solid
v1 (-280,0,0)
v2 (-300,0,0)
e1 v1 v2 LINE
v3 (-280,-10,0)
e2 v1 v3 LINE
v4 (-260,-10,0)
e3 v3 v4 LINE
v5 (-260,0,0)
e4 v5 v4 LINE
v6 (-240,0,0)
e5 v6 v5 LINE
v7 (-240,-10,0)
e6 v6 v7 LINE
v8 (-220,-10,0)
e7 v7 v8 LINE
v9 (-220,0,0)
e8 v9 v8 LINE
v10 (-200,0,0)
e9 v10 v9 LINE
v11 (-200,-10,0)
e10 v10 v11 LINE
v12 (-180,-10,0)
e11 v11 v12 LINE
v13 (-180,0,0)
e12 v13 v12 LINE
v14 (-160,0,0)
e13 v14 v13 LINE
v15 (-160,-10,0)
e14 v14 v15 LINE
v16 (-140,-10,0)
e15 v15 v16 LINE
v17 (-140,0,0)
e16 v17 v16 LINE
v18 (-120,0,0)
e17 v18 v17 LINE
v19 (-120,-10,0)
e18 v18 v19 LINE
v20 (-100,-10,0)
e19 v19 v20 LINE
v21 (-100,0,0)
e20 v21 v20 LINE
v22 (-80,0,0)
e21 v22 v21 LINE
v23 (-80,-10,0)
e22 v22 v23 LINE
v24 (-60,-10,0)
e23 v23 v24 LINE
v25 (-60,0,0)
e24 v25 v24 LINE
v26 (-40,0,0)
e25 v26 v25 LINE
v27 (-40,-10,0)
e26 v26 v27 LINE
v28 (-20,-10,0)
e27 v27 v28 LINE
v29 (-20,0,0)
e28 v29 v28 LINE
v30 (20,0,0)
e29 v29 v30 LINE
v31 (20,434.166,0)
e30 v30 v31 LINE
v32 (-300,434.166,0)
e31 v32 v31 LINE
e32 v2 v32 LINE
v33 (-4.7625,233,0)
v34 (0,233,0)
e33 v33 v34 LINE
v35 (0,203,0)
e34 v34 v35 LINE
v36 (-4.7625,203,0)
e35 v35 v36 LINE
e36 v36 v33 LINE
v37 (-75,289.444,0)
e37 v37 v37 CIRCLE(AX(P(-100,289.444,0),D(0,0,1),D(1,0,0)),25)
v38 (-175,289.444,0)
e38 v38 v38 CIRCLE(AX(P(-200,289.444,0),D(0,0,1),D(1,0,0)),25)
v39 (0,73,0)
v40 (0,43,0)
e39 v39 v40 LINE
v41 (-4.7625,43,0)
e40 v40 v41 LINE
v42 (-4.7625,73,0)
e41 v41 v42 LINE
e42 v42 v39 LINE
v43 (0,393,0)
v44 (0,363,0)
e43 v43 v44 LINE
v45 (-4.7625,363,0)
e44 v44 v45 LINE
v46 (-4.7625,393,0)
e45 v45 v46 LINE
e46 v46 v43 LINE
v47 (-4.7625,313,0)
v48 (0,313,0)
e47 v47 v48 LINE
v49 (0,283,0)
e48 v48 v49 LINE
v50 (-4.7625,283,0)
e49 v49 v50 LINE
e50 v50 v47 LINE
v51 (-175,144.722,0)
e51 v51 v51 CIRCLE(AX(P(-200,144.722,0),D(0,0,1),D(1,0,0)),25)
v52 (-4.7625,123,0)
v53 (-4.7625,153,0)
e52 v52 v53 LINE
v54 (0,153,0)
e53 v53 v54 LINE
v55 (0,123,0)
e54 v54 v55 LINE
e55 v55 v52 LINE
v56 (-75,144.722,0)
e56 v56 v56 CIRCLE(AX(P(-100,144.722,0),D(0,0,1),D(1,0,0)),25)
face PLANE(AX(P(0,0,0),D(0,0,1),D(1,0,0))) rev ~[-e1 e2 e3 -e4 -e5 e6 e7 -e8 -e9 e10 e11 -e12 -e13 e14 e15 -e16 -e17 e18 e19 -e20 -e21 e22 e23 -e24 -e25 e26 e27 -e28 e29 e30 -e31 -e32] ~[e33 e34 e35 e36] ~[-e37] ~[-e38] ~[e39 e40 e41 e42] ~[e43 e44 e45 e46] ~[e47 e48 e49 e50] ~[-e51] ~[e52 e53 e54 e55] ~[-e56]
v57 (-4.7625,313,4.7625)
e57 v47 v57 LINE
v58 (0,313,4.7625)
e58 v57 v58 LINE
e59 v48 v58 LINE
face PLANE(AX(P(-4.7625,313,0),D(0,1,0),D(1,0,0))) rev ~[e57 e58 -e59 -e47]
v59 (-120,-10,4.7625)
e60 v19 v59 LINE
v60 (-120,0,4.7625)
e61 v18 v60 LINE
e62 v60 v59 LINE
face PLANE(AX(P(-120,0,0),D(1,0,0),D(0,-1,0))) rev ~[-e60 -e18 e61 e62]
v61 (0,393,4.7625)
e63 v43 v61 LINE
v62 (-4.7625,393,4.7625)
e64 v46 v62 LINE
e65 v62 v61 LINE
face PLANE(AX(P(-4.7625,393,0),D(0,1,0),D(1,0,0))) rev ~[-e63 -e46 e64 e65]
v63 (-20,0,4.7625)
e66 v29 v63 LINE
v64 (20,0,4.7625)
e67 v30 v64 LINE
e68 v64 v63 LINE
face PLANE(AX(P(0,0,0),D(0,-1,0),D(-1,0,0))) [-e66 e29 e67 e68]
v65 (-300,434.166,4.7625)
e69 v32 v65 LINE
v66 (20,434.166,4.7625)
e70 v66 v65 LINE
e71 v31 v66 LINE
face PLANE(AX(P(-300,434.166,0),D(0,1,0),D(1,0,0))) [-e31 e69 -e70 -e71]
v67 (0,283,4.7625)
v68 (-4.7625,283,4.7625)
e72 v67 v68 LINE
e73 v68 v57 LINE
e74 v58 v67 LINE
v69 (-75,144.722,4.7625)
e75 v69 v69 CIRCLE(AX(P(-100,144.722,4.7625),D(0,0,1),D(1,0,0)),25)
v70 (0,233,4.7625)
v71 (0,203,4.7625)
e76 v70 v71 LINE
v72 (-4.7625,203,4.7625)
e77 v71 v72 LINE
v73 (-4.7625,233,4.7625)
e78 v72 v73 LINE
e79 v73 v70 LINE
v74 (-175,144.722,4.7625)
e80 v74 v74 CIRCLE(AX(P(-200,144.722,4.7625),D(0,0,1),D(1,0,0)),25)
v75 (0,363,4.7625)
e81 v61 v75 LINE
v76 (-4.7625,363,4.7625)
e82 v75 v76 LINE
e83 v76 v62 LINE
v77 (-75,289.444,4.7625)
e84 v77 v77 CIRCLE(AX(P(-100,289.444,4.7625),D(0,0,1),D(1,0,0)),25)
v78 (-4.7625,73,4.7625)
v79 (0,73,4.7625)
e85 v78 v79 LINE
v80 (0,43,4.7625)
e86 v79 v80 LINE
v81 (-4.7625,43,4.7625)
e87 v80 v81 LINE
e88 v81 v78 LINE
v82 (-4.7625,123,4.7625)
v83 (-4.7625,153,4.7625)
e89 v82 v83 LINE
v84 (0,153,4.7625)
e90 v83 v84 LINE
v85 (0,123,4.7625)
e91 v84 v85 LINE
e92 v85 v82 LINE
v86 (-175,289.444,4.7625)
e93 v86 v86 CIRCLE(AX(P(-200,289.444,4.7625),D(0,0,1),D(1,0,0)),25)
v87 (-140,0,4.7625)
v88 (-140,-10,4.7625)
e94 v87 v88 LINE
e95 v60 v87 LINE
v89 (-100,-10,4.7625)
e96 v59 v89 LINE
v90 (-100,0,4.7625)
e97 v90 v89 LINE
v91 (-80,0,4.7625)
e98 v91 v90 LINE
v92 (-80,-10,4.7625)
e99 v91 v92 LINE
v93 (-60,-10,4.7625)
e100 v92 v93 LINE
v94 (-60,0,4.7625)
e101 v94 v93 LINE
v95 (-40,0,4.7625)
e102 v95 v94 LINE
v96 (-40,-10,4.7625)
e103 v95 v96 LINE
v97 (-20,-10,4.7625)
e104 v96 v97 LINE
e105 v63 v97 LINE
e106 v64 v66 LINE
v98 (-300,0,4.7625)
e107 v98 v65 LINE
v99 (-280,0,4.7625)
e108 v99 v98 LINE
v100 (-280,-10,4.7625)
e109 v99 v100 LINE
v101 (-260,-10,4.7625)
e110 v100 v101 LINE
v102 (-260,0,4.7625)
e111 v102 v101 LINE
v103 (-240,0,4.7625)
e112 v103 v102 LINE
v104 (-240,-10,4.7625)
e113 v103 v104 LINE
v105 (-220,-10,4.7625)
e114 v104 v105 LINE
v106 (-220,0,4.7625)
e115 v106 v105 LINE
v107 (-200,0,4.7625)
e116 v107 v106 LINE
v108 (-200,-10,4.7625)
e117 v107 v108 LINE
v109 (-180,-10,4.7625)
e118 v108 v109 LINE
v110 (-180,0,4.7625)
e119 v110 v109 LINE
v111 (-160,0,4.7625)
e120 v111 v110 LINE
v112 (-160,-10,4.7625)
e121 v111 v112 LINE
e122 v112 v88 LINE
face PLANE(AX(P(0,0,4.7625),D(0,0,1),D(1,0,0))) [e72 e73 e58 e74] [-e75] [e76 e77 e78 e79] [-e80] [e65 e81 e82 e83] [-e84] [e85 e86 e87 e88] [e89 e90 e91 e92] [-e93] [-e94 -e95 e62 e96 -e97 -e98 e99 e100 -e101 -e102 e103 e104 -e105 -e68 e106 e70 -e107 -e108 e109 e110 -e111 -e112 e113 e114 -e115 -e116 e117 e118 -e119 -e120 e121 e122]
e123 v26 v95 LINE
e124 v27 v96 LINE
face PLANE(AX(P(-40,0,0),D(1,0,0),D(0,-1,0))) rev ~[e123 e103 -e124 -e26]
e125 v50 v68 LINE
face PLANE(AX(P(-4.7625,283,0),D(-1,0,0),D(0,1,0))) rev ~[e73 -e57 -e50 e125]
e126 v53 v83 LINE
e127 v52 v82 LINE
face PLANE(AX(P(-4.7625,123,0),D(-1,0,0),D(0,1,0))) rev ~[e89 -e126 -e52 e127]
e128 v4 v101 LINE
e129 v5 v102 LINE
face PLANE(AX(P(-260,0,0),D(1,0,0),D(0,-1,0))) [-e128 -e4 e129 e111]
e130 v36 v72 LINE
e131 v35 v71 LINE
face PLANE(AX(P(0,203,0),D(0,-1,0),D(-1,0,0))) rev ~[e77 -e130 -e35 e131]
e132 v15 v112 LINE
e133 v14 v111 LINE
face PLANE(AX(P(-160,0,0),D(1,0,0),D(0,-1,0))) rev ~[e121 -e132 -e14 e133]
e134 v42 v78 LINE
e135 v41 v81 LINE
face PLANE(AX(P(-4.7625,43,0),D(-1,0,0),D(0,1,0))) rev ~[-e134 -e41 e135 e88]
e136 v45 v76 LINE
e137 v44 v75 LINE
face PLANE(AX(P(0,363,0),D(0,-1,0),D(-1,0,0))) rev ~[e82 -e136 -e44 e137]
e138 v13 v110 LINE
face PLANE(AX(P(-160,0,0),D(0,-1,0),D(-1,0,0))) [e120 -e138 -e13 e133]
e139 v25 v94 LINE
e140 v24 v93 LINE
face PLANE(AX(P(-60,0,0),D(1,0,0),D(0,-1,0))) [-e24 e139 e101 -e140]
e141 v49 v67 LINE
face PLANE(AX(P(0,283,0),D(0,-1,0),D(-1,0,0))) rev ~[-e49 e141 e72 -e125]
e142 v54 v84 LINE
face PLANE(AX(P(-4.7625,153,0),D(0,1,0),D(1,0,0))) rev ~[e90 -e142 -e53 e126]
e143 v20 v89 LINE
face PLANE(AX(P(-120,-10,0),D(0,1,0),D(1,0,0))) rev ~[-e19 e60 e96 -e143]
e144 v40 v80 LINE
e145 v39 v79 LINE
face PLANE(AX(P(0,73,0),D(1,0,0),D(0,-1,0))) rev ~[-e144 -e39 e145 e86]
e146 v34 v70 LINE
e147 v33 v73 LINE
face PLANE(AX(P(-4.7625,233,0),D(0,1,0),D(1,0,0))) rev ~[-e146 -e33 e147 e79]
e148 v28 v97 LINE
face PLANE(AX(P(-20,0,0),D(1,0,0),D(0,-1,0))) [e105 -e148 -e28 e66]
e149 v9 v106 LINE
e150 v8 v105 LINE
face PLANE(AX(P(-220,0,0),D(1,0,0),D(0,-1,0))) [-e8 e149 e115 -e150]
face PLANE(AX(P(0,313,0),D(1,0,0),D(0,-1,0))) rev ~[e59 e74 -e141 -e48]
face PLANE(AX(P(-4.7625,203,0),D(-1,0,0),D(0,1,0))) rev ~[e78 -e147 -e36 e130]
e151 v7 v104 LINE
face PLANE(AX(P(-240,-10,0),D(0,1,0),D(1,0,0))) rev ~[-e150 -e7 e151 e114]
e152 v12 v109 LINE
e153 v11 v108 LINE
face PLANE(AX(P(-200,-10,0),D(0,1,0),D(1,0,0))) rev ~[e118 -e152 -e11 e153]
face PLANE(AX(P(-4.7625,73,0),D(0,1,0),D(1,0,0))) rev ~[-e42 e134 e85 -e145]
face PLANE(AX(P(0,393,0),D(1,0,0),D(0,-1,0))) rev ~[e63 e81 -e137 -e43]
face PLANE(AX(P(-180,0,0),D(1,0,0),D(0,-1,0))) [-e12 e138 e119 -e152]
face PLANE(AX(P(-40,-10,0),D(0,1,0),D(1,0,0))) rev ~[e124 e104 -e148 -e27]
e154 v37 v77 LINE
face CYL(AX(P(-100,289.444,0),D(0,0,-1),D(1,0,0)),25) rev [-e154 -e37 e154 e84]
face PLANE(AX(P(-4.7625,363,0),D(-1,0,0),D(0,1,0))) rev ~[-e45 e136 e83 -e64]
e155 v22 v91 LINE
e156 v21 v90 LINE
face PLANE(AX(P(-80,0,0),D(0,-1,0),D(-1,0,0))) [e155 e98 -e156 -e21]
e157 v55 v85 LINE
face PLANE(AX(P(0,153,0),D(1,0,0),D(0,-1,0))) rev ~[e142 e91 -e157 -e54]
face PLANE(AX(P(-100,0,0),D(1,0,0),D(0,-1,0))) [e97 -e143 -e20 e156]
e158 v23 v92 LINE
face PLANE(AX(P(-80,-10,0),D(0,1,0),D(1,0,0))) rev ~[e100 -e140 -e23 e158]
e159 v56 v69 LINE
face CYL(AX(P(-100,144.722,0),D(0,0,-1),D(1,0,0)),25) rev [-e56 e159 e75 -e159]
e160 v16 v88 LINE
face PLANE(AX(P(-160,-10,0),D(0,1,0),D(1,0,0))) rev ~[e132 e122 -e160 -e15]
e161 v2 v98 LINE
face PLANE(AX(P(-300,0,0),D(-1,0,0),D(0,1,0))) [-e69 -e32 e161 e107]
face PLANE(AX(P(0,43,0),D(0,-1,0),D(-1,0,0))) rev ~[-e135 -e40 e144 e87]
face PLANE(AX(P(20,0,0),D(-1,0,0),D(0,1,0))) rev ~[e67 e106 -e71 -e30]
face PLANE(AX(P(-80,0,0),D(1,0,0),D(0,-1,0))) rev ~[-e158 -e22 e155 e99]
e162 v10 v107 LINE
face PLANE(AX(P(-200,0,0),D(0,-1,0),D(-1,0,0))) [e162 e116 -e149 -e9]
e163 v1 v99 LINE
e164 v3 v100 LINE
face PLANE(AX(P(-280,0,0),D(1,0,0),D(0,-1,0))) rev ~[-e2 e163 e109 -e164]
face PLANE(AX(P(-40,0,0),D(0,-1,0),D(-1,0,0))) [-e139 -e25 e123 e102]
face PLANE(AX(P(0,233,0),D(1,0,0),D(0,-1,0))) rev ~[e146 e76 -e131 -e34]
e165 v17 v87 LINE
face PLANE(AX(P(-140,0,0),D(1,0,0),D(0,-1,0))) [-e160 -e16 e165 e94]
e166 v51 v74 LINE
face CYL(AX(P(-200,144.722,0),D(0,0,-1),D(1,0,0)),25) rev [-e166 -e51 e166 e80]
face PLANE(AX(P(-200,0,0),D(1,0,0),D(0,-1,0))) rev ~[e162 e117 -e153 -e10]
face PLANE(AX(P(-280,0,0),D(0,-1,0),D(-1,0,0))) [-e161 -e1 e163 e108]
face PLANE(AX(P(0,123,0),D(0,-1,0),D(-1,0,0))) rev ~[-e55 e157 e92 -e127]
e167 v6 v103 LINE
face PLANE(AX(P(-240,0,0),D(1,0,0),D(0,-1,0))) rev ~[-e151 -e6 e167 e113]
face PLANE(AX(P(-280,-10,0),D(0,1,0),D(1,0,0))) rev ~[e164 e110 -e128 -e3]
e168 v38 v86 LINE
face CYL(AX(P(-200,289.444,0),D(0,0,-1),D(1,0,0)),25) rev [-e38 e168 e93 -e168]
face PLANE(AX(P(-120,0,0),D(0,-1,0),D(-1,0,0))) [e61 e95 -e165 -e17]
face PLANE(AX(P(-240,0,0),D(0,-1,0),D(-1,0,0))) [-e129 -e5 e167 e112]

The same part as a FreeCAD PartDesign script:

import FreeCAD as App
import Part
import Sketcher

V = App.Vector
Q = App.Units.Quantity

doc = App.newDocument("Part")
params = doc.addObject("Spreadsheet::Sheet", "Params")
for row, (alias, value) in enumerate([
    ("sketch1_diameter", "50 mm"),
    ("sketch1_width", "20 mm"),
    ("sketch1_height", "10 mm"),
    ("sketch1_height2", "30 mm"),
    ("pad1_length", "4.7625 mm"),
], start=1):
    params.set(f"A{row}", alias)
    params.set(f"B{row}", "=" + value)
    params.setAlias(f"B{row}", alias)

body = doc.addObject("PartDesign::Body", "Body")

sketch1 = body.newObject("Sketcher::SketchObject", "Sketch")
sketch1.AttachmentSupport = (doc.getObject("XY_Plane"), [""])
sketch1.MapMode = "FlatFace"
sketch1.addGeometry([
    Part.LineSegment(V(-20, 0, 0), V(20, 0, 0)),
    Part.LineSegment(V(20, 0, 0), V(20, 434.2, 0)),
    Part.LineSegment(V(20, 434.2, 0), V(-300, 434.2, 0)),
    Part.LineSegment(V(-300, 434.2, 0), V(-300, 0, 0)),
    Part.LineSegment(V(-300, 0, 0), V(-280, 0, 0)),
    Part.LineSegment(V(-280, 0, 0), V(-280, -10, 0)),
    Part.LineSegment(V(-280, -10, 0), V(-260, -10, 0)),
    Part.LineSegment(V(-260, -10, 0), V(-260, 0, 0)),
    Part.LineSegment(V(-260, 0, 0), V(-240, 0, 0)),
    Part.LineSegment(V(-240, 0, 0), V(-240, -10, 0)),
    Part.LineSegment(V(-240, -10, 0), V(-220, -10, 0)),
    Part.LineSegment(V(-220, -10, 0), V(-220, 0, 0)),
    Part.LineSegment(V(-220, 0, 0), V(-200, 0, 0)),
    Part.LineSegment(V(-200, 0, 0), V(-200, -10, 0)),
    Part.LineSegment(V(-200, -10, 0), V(-180, -10, 0)),
    Part.LineSegment(V(-180, -10, 0), V(-180, 0, 0)),
    Part.LineSegment(V(-180, 0, 0), V(-160, 0, 0)),
    Part.LineSegment(V(-160, 0, 0), V(-160, -10, 0)),
    Part.LineSegment(V(-160, -10, 0), V(-140, -10, 0)),
    Part.LineSegment(V(-140, -10, 0), V(-140, 0, 0)),
    Part.LineSegment(V(-140, 0, 0), V(-120, 0, 0)),
    Part.LineSegment(V(-120, 0, 0), V(-120, -10, 0)),
    Part.LineSegment(V(-120, -10, 0), V(-100, -10, 0)),
    Part.LineSegment(V(-100, -10, 0), V(-100, 0, 0)),
    Part.LineSegment(V(-100, 0, 0), V(-80, 0, 0)),
    Part.LineSegment(V(-80, 0, 0), V(-80, -10, 0)),
    Part.LineSegment(V(-80, -10, 0), V(-60, -10, 0)),
    Part.LineSegment(V(-60, -10, 0), V(-60, 0, 0)),
    Part.LineSegment(V(-60, 0, 0), V(-40, 0, 0)),
    Part.LineSegment(V(-40, 0, 0), V(-40, -10, 0)),
    Part.LineSegment(V(-40, -10, 0), V(-20, -10, 0)),
    Part.LineSegment(V(-20, -10, 0), V(-20, 0, 0)),
    Part.LineSegment(V(-4.8, 393, 0), V(0, 393, 0)),
    Part.LineSegment(V(0, 393, 0), V(0, 363, 0)),
    Part.LineSegment(V(0, 363, 0), V(-4.8, 363, 0)),
    Part.LineSegment(V(-4.8, 363, 0), V(-4.8, 393, 0)),
    Part.LineSegment(V(-4.8, 313, 0), V(0, 313, 0)),
    Part.LineSegment(V(0, 313, 0), V(0, 283, 0)),
    Part.LineSegment(V(0, 283, 0), V(-4.8, 283, 0)),
    Part.LineSegment(V(-4.8, 283, 0), V(-4.8, 313, 0)),
    Part.LineSegment(V(-4.8, 233, 0), V(0, 233, 0)),
    Part.LineSegment(V(0, 233, 0), V(0, 203, 0)),
    Part.LineSegment(V(0, 203, 0), V(-4.8, 203, 0)),
    Part.LineSegment(V(-4.8, 203, 0), V(-4.8, 233, 0)),
    Part.LineSegment(V(-4.8, 153, 0), V(0, 153, 0)),
    Part.LineSegment(V(0, 153, 0), V(0, 123, 0)),
    Part.LineSegment(V(0, 123, 0), V(-4.8, 123, 0)),
    Part.LineSegment(V(-4.8, 123, 0), V(-4.8, 153, 0)),
    Part.LineSegment(V(-4.8, 73, 0), V(0, 73, 0)),
    Part.LineSegment(V(0, 73, 0), V(0, 43, 0)),
    Part.LineSegment(V(0, 43, 0), V(-4.8, 43, 0)),
    Part.LineSegment(V(-4.8, 43, 0), V(-4.8, 73, 0)),
    Part.Circle(V(-200, 144.7, 0), V(0, 0, 1), 25),
    Part.Circle(V(-100, 144.7, 0), V(0, 0, 1), 25),
    Part.Circle(V(-200, 289.4, 0), V(0, 0, 1), 25),
    Part.Circle(V(-100, 289.4, 0), V(0, 0, 1), 25),
], False)
sketch1.addConstraint([
    Sketcher.Constraint("Coincident", 0, 2, 1, 1),
    Sketcher.Constraint("Coincident", 1, 2, 2, 1),
    Sketcher.Constraint("Coincident", 2, 2, 3, 1),
    Sketcher.Constraint("Coincident", 3, 2, 4, 1),
    Sketcher.Constraint("Coincident", 4, 2, 5, 1),
    Sketcher.Constraint("Coincident", 5, 2, 6, 1),
    Sketcher.Constraint("Coincident", 6, 2, 7, 1),
    Sketcher.Constraint("Coincident", 7, 2, 8, 1),
    Sketcher.Constraint("Coincident", 8, 2, 9, 1),
    Sketcher.Constraint("Coincident", 9, 2, 10, 1),
    Sketcher.Constraint("Coincident", 10, 2, 11, 1),
    Sketcher.Constraint("Coincident", 11, 2, 12, 1),
    Sketcher.Constraint("Coincident", 12, 2, 13, 1),
    Sketcher.Constraint("Coincident", 13, 2, 14, 1),
    Sketcher.Constraint("Coincident", 14, 2, 15, 1),
    Sketcher.Constraint("Coincident", 15, 2, 16, 1),
    Sketcher.Constraint("Coincident", 16, 2, 17, 1),
    Sketcher.Constraint("Coincident", 17, 2, 18, 1),
    Sketcher.Constraint("Coincident", 18, 2, 19, 1),
    Sketcher.Constraint("Coincident", 19, 2, 20, 1),
    Sketcher.Constraint("Coincident", 20, 2, 21, 1),
    Sketcher.Constraint("Coincident", 21, 2, 22, 1),
    Sketcher.Constraint("Coincident", 22, 2, 23, 1),
    Sketcher.Constraint("Coincident", 23, 2, 24, 1),
    Sketcher.Constraint("Coincident", 24, 2, 25, 1),
    Sketcher.Constraint("Coincident", 25, 2, 26, 1),
    Sketcher.Constraint("Coincident", 26, 2, 27, 1),
    Sketcher.Constraint("Coincident", 27, 2, 28, 1),
    Sketcher.Constraint("Coincident", 28, 2, 29, 1),
    Sketcher.Constraint("Coincident", 29, 2, 30, 1),
    Sketcher.Constraint("Coincident", 30, 2, 31, 1),
    Sketcher.Constraint("Coincident", 31, 2, 0, 1),
    Sketcher.Constraint("Coincident", 32, 2, 33, 1),
    Sketcher.Constraint("Coincident", 33, 2, 34, 1),
    Sketcher.Constraint("Coincident", 34, 2, 35, 1),
    Sketcher.Constraint("Coincident", 35, 2, 32, 1),
    Sketcher.Constraint("Coincident", 36, 2, 37, 1),
    Sketcher.Constraint("Coincident", 37, 2, 38, 1),
    Sketcher.Constraint("Coincident", 38, 2, 39, 1),
    Sketcher.Constraint("Coincident", 39, 2, 36, 1),
    Sketcher.Constraint("Coincident", 40, 2, 41, 1),
    Sketcher.Constraint("Coincident", 41, 2, 42, 1),
    Sketcher.Constraint("Coincident", 42, 2, 43, 1),
    Sketcher.Constraint("Coincident", 43, 2, 40, 1),
    Sketcher.Constraint("Coincident", 44, 2, 45, 1),
    Sketcher.Constraint("Coincident", 45, 2, 46, 1),
    Sketcher.Constraint("Coincident", 46, 2, 47, 1),
    Sketcher.Constraint("Coincident", 47, 2, 44, 1),
    Sketcher.Constraint("Coincident", 48, 2, 49, 1),
    Sketcher.Constraint("Coincident", 49, 2, 50, 1),
    Sketcher.Constraint("Coincident", 50, 2, 51, 1),
    Sketcher.Constraint("Coincident", 51, 2, 48, 1),
    Sketcher.Constraint("Horizontal", 0),
    Sketcher.Constraint("Vertical", 1),
    Sketcher.Constraint("Horizontal", 2),
    Sketcher.Constraint("Vertical", 3),
    Sketcher.Constraint("Horizontal", 4),
    Sketcher.Constraint("Vertical", 5),
    Sketcher.Constraint("Horizontal", 6),
    Sketcher.Constraint("Vertical", 7),
    Sketcher.Constraint("Horizontal", 8),
    Sketcher.Constraint("Vertical", 9),
    Sketcher.Constraint("Horizontal", 10),
    Sketcher.Constraint("Vertical", 11),
    Sketcher.Constraint("Horizontal", 12),
    Sketcher.Constraint("Vertical", 13),
    Sketcher.Constraint("Horizontal", 14),
    Sketcher.Constraint("Vertical", 15),
    Sketcher.Constraint("Horizontal", 16),
    Sketcher.Constraint("Vertical", 17),
    Sketcher.Constraint("Horizontal", 18),
    Sketcher.Constraint("Vertical", 19),
    Sketcher.Constraint("Horizontal", 20),
    Sketcher.Constraint("Vertical", 21),
    Sketcher.Constraint("Horizontal", 22),
    Sketcher.Constraint("Vertical", 23),
    Sketcher.Constraint("Horizontal", 24),
    Sketcher.Constraint("Vertical", 25),
    Sketcher.Constraint("Horizontal", 26),
    Sketcher.Constraint("Vertical", 27),
    Sketcher.Constraint("Horizontal", 28),
    Sketcher.Constraint("Vertical", 29),
    Sketcher.Constraint("Horizontal", 30),
    Sketcher.Constraint("Vertical", 31),
    Sketcher.Constraint("Horizontal", 32),
    Sketcher.Constraint("Vertical", 33),
    Sketcher.Constraint("Horizontal", 34),
    Sketcher.Constraint("Vertical", 35),
    Sketcher.Constraint("Horizontal", 36),
    Sketcher.Constraint("Vertical", 37),
    Sketcher.Constraint("Horizontal", 38),
    Sketcher.Constraint("Vertical", 39),
    Sketcher.Constraint("Horizontal", 40),
    Sketcher.Constraint("Vertical", 41),
    Sketcher.Constraint("Horizontal", 42),
    Sketcher.Constraint("Vertical", 43),
    Sketcher.Constraint("Horizontal", 44),
    Sketcher.Constraint("Vertical", 45),
    Sketcher.Constraint("Horizontal", 46),
    Sketcher.Constraint("Vertical", 47),
    Sketcher.Constraint("Horizontal", 48),
    Sketcher.Constraint("Vertical", 49),
    Sketcher.Constraint("Horizontal", 50),
    Sketcher.Constraint("Vertical", 51),
    Sketcher.Constraint("Equal", 52, 53),
    Sketcher.Constraint("Equal", 53, 54),
    Sketcher.Constraint("Equal", 54, 55),
    Sketcher.Constraint("Symmetric", 0, 2, 31, 2, -1, 1),
    Sketcher.Constraint("PointOnObject", 3, 2, -1),
    Sketcher.Constraint("PointOnObject", 7, 2, -1),
    Sketcher.Constraint("PointOnObject", 11, 2, -1),
    Sketcher.Constraint("PointOnObject", 15, 2, -1),
    Sketcher.Constraint("PointOnObject", 19, 2, -1),
    Sketcher.Constraint("PointOnObject", 23, 2, -1),
    Sketcher.Constraint("PointOnObject", 27, 2, -1),
    Sketcher.Constraint("PointOnObject", 32, 2, -2),
    Sketcher.Constraint("PointOnObject", 36, 2, -2),
    Sketcher.Constraint("PointOnObject", 40, 2, -2),
    Sketcher.Constraint("PointOnObject", 44, 2, -2),
    Sketcher.Constraint("PointOnObject", 48, 2, -2),
    Sketcher.Constraint("Horizontal", 52, 3, 53, 3),
    Sketcher.Constraint("Horizontal", 54, 3, 55, 3),
    Sketcher.Constraint("Horizontal", 6, 2, 9, 2),
    Sketcher.Constraint("Horizontal", 10, 2, 13, 2),
    Sketcher.Constraint("Horizontal", 14, 2, 17, 2),
    Sketcher.Constraint("Horizontal", 18, 2, 21, 2),
    Sketcher.Constraint("Horizontal", 22, 2, 25, 2),
    Sketcher.Constraint("Horizontal", 26, 2, 29, 2),
    Sketcher.Constraint("Vertical", 52, 3, 54, 3),
    Sketcher.Constraint("Vertical", 53, 3, 55, 3),
    Sketcher.Constraint("Vertical", 54, 3, 12, 2),
    Sketcher.Constraint("Vertical", 55, 3, 22, 2),
    Sketcher.Constraint("Vertical", 35, 2, 38, 2),
    Sketcher.Constraint("Vertical", 39, 2, 42, 2),
    Sketcher.Constraint("Vertical", 43, 2, 46, 2),
    Sketcher.Constraint("Vertical", 47, 2, 50, 2),
    Sketcher.Constraint("Equal", 4, 6),
    Sketcher.Constraint("Equal", 6, 8),
    Sketcher.Constraint("Equal", 8, 10),
    Sketcher.Constraint("Equal", 10, 12),
    Sketcher.Constraint("Equal", 12, 14),
    Sketcher.Constraint("Equal", 14, 16),
    Sketcher.Constraint("Equal", 16, 18),
    Sketcher.Constraint("Equal", 18, 20),
    Sketcher.Constraint("Equal", 20, 22),
    Sketcher.Constraint("Equal", 22, 24),
    Sketcher.Constraint("Equal", 24, 26),
    Sketcher.Constraint("Equal", 26, 28),
    Sketcher.Constraint("Equal", 28, 30),
    Sketcher.Constraint("Equal", 35, 37),
    Sketcher.Constraint("Equal", 39, 41),
    Sketcher.Constraint("Equal", 43, 45),
    Sketcher.Constraint("Equal", 47, 49),
    Sketcher.Constraint("Diameter", 52, Q("50 mm")),
    Sketcher.Constraint("DistanceX", 4, 1, 4, 2, Q("20 mm")),
    Sketcher.Constraint("DistanceY", 5, 2, 5, 1, Q("10 mm")),
    Sketcher.Constraint("DistanceY", 33, 2, 33, 1, Q("30 mm")),
    Sketcher.Constraint("DistanceX", 52, 3, -1, 1, Q("200 mm")),
    Sketcher.Constraint("DistanceY", -1, 1, 49, 2, Q("43 mm")),
    Sketcher.Constraint("DistanceY", 36, 2, 33, 2, Q("50 mm")),
    Sketcher.Constraint("DistanceY", 40, 2, 37, 2, Q("50 mm")),
    Sketcher.Constraint("DistanceY", 44, 2, 41, 2, Q("50 mm")),
    Sketcher.Constraint("DistanceY", 48, 2, 45, 2, Q("50 mm")),
    Sketcher.Constraint("DistanceY", 1, 1, 1, 2, Q("434.166 mm")),
    Sketcher.Constraint("DistanceX", 32, 1, 32, 2, Q("4.7625 mm")),
    Sketcher.Constraint("DistanceY", -1, 1, 52, 3, Q("144.722 mm")),
    Sketcher.Constraint("DistanceY", 52, 3, 54, 3, Q("144.722 mm")),
])
sketch1.setExpression("Constraints[153]", "Params.sketch1_diameter")
sketch1.setExpression("Constraints[154]", "Params.sketch1_width")
sketch1.setExpression("Constraints[155]", "Params.sketch1_height")
sketch1.setExpression("Constraints[156]", "Params.sketch1_height2")
pad1 = body.newObject("PartDesign::Pad", "Pad")
pad1.Profile = sketch1
pad1.setExpression("Length", "Params.pad1_length")

doc.recompute()
